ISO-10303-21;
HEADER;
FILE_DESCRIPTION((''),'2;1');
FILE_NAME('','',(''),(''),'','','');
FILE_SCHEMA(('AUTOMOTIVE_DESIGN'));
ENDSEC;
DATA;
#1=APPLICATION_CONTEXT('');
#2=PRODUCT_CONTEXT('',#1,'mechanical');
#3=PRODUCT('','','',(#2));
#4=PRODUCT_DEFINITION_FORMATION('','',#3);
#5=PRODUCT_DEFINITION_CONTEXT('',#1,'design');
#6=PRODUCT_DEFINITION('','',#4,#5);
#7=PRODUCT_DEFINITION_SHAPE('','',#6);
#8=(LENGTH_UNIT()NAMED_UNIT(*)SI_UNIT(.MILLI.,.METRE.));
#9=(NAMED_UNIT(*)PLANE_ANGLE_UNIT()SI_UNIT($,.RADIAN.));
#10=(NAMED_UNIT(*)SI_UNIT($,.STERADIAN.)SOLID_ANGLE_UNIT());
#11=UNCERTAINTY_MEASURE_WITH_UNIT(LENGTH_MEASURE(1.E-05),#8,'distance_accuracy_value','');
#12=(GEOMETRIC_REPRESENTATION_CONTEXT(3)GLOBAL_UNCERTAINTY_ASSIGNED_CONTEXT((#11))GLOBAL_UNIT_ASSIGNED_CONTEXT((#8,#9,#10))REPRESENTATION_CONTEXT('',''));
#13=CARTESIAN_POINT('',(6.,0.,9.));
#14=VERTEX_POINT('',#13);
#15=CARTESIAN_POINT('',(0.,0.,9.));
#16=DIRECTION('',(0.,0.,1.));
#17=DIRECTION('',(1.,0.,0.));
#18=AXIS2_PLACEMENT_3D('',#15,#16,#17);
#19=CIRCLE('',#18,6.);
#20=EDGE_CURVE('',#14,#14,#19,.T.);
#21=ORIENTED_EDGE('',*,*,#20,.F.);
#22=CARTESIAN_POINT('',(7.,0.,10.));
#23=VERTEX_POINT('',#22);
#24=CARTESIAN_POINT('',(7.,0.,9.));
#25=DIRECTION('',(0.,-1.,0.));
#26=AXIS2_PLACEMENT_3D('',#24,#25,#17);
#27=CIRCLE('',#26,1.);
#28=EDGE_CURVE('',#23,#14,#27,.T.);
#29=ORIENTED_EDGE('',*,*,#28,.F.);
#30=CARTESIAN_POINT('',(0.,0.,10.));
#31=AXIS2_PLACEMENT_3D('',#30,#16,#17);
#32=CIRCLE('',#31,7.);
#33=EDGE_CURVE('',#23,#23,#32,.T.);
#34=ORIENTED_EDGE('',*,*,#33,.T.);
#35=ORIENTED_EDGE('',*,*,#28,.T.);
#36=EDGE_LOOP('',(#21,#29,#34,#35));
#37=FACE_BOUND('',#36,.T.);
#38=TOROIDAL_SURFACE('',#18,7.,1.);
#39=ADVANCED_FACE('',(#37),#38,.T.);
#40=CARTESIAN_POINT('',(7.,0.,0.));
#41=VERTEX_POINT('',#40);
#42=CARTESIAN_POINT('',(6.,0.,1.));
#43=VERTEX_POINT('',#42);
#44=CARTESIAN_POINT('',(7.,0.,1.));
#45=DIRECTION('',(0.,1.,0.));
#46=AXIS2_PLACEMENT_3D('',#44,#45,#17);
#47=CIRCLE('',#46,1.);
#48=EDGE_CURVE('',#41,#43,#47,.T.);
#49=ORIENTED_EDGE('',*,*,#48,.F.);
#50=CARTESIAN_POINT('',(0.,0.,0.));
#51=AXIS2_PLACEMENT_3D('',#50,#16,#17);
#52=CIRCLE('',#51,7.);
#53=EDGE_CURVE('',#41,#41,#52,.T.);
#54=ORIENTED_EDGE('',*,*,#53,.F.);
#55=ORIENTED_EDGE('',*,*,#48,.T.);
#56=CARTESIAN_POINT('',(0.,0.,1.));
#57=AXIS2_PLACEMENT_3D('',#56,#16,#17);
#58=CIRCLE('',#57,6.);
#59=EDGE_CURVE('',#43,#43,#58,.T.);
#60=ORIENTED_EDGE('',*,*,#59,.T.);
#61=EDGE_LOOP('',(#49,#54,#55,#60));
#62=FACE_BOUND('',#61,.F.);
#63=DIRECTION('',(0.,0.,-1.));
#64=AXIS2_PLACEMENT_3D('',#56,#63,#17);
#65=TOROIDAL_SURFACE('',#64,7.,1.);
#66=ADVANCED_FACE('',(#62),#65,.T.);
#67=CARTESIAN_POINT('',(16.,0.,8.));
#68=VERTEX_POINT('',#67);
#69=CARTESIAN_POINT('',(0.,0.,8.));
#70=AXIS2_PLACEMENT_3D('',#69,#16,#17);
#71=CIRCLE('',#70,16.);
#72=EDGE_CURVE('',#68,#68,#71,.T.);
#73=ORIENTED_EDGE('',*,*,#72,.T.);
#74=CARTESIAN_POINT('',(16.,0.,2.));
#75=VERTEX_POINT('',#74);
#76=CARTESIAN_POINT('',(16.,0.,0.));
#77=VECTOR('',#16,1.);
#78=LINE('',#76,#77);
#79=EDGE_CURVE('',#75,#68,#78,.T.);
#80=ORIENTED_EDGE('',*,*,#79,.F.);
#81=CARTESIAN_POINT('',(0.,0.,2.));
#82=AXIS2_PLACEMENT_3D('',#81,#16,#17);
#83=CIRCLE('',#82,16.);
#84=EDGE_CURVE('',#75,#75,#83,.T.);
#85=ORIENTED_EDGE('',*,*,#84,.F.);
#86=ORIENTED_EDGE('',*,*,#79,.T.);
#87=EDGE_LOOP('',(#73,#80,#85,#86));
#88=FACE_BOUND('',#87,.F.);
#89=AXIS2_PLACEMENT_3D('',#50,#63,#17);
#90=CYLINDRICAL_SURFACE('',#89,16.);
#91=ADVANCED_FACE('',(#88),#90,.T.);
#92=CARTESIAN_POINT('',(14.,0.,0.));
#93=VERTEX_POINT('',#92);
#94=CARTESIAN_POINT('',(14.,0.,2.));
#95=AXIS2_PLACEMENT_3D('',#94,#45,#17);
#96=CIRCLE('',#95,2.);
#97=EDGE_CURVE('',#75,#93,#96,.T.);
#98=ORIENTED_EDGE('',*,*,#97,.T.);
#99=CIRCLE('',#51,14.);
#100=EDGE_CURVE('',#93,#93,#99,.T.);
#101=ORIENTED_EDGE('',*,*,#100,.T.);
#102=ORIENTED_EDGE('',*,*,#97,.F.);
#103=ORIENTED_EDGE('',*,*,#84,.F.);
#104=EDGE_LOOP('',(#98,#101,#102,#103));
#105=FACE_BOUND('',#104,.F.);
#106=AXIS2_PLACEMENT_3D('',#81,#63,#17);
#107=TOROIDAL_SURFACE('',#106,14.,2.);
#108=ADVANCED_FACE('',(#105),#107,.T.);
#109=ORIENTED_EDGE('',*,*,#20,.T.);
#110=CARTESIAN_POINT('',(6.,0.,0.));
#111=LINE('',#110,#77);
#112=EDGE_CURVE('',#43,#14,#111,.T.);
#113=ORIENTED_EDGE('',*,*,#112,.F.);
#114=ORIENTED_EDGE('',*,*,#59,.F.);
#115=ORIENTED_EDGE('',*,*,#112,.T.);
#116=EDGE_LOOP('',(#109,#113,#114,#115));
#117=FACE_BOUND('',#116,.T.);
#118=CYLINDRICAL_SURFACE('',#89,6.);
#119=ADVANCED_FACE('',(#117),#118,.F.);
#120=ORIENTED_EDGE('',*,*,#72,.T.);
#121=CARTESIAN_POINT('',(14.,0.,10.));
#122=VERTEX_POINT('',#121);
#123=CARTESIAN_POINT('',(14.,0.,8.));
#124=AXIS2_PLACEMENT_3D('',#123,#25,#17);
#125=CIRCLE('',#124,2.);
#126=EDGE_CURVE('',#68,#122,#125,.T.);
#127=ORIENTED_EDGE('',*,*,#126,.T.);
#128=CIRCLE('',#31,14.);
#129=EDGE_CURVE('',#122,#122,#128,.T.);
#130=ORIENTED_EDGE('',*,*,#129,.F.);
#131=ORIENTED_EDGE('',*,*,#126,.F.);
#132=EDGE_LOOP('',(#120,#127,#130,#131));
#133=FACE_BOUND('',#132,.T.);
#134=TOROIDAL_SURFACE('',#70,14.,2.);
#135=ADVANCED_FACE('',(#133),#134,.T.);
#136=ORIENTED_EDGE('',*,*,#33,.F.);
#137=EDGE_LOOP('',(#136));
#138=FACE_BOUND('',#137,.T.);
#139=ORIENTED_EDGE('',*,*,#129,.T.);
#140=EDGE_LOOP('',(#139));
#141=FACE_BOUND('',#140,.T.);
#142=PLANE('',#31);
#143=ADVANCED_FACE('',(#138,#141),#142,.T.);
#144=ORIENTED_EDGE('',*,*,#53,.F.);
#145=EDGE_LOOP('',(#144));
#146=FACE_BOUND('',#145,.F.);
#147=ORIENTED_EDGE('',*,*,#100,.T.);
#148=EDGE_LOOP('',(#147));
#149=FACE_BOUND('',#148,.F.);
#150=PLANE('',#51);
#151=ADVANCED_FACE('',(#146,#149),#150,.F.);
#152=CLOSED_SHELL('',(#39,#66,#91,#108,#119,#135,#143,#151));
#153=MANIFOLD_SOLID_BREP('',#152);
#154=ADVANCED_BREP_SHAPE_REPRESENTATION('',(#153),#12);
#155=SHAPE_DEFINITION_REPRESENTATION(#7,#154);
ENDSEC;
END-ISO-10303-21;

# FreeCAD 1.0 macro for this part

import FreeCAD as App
import Part
import Sketcher

V = App.Vector
Q = App.Units.Quantity


def edges_at(feature, points):
    """Names of the edges that pass closest to the given points."""
    edges = feature.Shape.Edges
    near = lambda p: min(range(len(edges)), key=lambda i: edges[i].distToShape(Part.Vertex(*p))[0])
    return sorted({f"Edge{near(p) + 1}" for p in points})

doc = App.newDocument("Part")
body = doc.addObject("PartDesign::Body", "Body")

sketch1 = body.newObject("Sketcher::SketchObject", "Sketch")
sketch1.AttachmentSupport = (doc.getObject("XY_Plane"), [""])
sketch1.MapMode = "FlatFace"
sketch1.addGeometry(Part.Circle(V(0, 0, 0), V(0, 0, 1), 16), False)
sketch1.addGeometry(Part.Circle(V(0, 0, 0), V(0, 0, 1), 6), False)
sketch1.addConstraint(Sketcher.Constraint("Coincident", 0, 3, -1, 1))
sketch1.addConstraint(Sketcher.Constraint("Coincident", 1, 3, -1, 1))
sketch1.addConstraint(Sketcher.Constraint("Diameter", 0, Q("32 mm")))
sketch1.addConstraint(Sketcher.Constraint("Diameter", 1, Q("12 mm")))
pad1 = body.newObject("PartDesign::Pad", "Pad")
pad1.Profile = sketch1
pad1.Length = 10
doc.recompute()

fillet = body.newObject("PartDesign::Fillet", "Fillet")
fillet.Base = (pad1, edges_at(pad1, [(-16, 0, 10), (-16, 0, 0)]))
fillet.Radius = 2
doc.recompute()

fillet2 = body.newObject("PartDesign::Fillet", "Fillet001")
fillet2.Base = (fillet, edges_at(fillet, [(-6, 0, 10), (-6, 0, 0)]))
fillet2.Radius = 1

doc.recompute()
